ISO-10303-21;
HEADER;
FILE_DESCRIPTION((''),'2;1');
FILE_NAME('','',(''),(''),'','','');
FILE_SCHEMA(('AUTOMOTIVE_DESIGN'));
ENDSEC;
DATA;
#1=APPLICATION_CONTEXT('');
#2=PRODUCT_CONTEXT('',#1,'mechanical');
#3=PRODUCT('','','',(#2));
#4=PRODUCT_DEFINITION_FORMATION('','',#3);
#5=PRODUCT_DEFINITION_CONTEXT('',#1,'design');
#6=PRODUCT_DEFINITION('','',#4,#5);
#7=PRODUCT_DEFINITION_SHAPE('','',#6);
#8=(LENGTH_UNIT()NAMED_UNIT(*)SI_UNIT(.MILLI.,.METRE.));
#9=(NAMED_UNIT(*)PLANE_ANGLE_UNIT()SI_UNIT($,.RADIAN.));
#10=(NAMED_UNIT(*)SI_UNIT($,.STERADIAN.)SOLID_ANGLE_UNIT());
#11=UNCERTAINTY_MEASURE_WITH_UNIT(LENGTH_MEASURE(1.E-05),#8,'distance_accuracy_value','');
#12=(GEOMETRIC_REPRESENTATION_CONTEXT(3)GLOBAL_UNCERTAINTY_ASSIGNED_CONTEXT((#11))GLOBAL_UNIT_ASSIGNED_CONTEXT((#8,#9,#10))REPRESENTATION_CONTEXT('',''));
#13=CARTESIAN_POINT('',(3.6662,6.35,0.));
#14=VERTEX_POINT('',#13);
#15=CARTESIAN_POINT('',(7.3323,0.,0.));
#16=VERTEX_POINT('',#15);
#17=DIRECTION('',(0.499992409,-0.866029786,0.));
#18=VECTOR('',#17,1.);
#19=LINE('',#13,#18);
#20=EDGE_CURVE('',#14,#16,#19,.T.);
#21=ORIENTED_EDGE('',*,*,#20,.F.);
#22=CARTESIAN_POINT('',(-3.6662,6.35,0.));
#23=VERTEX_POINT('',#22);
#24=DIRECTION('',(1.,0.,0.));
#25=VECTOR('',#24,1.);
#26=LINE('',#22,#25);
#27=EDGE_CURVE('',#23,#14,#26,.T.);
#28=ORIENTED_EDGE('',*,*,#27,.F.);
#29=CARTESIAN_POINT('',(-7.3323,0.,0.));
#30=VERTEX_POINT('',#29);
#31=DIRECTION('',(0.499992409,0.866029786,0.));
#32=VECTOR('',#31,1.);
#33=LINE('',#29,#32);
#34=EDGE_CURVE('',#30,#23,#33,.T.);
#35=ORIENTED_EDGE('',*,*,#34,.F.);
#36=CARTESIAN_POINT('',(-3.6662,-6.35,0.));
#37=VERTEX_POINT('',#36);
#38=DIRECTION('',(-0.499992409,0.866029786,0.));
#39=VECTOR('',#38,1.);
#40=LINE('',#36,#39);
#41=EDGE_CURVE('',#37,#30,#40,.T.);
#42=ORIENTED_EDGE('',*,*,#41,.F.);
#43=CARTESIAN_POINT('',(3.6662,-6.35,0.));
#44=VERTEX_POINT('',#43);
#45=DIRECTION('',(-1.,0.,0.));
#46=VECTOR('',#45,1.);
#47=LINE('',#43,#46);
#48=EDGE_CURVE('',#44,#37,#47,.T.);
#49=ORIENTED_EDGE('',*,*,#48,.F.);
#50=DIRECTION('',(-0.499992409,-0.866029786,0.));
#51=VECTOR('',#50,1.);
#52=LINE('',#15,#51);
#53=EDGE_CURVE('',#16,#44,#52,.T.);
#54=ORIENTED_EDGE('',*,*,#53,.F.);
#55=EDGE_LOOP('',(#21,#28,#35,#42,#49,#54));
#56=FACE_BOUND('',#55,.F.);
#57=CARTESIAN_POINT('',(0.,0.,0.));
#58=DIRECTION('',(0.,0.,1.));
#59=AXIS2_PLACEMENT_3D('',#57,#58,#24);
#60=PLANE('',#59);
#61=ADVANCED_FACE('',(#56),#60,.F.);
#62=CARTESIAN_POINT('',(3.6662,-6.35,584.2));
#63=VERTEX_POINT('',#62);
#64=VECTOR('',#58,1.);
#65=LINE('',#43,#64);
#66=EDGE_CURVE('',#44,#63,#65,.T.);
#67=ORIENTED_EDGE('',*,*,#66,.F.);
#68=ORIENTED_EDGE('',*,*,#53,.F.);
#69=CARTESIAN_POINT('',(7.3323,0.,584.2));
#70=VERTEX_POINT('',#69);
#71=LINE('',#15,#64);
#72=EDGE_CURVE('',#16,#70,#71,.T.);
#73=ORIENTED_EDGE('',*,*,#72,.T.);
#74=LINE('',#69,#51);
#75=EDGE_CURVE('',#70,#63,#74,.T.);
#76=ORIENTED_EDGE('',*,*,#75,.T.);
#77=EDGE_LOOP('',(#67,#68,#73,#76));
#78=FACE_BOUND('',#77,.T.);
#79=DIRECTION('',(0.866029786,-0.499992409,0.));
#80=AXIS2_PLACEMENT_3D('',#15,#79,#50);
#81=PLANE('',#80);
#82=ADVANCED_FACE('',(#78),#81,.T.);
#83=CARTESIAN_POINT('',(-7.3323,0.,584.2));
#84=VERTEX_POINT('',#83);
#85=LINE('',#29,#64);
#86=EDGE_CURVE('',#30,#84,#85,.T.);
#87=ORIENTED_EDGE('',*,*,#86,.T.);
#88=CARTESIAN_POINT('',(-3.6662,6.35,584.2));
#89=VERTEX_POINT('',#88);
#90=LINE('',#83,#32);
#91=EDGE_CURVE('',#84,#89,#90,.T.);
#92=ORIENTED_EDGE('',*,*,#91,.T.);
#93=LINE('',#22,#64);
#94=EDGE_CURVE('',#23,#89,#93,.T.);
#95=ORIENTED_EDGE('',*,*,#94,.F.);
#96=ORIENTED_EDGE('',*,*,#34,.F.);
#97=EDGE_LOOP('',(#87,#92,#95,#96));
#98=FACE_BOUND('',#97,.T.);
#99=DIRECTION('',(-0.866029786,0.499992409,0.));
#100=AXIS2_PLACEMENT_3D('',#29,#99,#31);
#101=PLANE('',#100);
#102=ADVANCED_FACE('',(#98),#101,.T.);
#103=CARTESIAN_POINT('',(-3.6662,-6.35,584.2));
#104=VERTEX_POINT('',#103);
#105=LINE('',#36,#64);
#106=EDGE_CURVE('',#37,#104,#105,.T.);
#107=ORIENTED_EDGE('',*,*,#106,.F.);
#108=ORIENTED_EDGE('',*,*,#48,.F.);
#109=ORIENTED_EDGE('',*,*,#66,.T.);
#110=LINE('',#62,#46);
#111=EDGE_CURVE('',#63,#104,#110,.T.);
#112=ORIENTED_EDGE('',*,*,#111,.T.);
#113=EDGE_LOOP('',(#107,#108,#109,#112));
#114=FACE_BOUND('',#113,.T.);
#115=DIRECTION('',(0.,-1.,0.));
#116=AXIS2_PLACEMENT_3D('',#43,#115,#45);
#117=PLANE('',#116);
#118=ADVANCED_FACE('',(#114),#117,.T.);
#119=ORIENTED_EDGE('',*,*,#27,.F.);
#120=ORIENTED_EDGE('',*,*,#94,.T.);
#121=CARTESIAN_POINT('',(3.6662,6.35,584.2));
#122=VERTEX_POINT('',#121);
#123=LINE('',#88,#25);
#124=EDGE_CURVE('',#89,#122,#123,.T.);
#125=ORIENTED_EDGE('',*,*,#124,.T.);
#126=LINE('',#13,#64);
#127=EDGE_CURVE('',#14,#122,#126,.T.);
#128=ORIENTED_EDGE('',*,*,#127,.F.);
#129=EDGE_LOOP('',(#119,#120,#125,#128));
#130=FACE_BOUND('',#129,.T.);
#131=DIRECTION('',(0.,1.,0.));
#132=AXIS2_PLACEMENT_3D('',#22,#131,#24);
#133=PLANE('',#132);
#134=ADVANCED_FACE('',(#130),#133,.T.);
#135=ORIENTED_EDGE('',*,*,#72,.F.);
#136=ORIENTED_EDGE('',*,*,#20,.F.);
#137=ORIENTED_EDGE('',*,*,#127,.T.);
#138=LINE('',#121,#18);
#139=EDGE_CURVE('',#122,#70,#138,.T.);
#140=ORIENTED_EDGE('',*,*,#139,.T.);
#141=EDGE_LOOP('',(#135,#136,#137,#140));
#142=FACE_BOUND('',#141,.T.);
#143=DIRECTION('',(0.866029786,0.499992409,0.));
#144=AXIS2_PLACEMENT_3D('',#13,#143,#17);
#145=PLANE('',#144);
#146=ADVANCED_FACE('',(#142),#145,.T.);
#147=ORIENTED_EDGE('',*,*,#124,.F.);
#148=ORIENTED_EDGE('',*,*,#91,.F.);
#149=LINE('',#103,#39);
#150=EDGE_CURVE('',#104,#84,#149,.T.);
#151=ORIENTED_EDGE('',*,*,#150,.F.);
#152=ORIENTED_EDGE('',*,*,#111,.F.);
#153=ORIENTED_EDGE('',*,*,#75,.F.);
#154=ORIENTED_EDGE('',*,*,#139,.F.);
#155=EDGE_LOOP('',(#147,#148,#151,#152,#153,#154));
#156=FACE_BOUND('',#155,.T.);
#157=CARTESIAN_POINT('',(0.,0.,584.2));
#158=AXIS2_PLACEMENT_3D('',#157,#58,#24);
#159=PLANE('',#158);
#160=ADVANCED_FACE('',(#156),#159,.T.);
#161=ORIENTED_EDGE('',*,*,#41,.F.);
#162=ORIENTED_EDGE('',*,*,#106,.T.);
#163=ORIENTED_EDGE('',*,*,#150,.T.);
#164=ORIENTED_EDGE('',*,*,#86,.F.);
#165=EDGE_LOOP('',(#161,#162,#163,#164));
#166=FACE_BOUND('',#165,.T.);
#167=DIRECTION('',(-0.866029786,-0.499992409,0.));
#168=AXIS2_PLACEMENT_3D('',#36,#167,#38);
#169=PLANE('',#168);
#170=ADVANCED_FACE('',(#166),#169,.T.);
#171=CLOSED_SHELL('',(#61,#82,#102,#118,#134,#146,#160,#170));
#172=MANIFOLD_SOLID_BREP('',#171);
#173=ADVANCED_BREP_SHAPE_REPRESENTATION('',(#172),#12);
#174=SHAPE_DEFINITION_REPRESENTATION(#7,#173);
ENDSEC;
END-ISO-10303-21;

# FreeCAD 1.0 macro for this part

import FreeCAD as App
import Part
import Sketcher

V = App.Vector
Q = App.Units.Quantity

doc = App.newDocument("Part")
body = doc.addObject("PartDesign::Body", "Body")

sketch1 = body.newObject("Sketcher::SketchObject", "Sketch")
sketch1.AttachmentSupport = (doc.getObject("XY_Plane"), [""])
sketch1.MapMode = "FlatFace"
sketch1.addGeometry([
    Part.LineSegment(V(7, 0, 0), V(4, 6, 0)),
    Part.LineSegment(V(4, 6, 0), V(-4, 6, 0)),
    Part.LineSegment(V(-4, 6, 0), V(-7, 0, 0)),
    Part.LineSegment(V(-7, 0, 0), V(-4, -6, 0)),
    Part.LineSegment(V(-4, -6, 0), V(4, -6, 0)),
    Part.LineSegment(V(4, -6, 0), V(7, 0, 0)),
], False)
sketch1.addConstraint([
    Sketcher.Constraint("Coincident", 0, 2, 1, 1),
    Sketcher.Constraint("Coincident", 1, 2, 2, 1),
    Sketcher.Constraint("Coincident", 2, 2, 3, 1),
    Sketcher.Constraint("Coincident", 3, 2, 4, 1),
    Sketcher.Constraint("Coincident", 4, 2, 5, 1),
    Sketcher.Constraint("Coincident", 5, 2, 0, 1),
    Sketcher.Constraint("Horizontal", 1),
    Sketcher.Constraint("Horizontal", 4),
    Sketcher.Constraint("Symmetric", 0, 2, 3, 2, -1, 1),
    Sketcher.Constraint("Symmetric", 2, 2, 5, 2, -1, 1),
    Sketcher.Constraint("PointOnObject", 2, 2, -1),
    Sketcher.Constraint("Parallel", 2, 5),
    Sketcher.Constraint("Vertical", 1, 2, 3, 2),
    Sketcher.Constraint("DistanceY", 3, 2, 1, 2, Q("0.5 in")),
    Sketcher.Constraint("Angle", 0, Q("119.9995 deg")),
    Sketcher.Constraint("DistanceX", 2, 2, 0, 2, Q("0.433 in")),
])
pad1 = body.newObject("PartDesign::Pad", "Pad")
pad1.Profile = sketch1
pad1.Length = Q("23 in")

doc.recompute()
